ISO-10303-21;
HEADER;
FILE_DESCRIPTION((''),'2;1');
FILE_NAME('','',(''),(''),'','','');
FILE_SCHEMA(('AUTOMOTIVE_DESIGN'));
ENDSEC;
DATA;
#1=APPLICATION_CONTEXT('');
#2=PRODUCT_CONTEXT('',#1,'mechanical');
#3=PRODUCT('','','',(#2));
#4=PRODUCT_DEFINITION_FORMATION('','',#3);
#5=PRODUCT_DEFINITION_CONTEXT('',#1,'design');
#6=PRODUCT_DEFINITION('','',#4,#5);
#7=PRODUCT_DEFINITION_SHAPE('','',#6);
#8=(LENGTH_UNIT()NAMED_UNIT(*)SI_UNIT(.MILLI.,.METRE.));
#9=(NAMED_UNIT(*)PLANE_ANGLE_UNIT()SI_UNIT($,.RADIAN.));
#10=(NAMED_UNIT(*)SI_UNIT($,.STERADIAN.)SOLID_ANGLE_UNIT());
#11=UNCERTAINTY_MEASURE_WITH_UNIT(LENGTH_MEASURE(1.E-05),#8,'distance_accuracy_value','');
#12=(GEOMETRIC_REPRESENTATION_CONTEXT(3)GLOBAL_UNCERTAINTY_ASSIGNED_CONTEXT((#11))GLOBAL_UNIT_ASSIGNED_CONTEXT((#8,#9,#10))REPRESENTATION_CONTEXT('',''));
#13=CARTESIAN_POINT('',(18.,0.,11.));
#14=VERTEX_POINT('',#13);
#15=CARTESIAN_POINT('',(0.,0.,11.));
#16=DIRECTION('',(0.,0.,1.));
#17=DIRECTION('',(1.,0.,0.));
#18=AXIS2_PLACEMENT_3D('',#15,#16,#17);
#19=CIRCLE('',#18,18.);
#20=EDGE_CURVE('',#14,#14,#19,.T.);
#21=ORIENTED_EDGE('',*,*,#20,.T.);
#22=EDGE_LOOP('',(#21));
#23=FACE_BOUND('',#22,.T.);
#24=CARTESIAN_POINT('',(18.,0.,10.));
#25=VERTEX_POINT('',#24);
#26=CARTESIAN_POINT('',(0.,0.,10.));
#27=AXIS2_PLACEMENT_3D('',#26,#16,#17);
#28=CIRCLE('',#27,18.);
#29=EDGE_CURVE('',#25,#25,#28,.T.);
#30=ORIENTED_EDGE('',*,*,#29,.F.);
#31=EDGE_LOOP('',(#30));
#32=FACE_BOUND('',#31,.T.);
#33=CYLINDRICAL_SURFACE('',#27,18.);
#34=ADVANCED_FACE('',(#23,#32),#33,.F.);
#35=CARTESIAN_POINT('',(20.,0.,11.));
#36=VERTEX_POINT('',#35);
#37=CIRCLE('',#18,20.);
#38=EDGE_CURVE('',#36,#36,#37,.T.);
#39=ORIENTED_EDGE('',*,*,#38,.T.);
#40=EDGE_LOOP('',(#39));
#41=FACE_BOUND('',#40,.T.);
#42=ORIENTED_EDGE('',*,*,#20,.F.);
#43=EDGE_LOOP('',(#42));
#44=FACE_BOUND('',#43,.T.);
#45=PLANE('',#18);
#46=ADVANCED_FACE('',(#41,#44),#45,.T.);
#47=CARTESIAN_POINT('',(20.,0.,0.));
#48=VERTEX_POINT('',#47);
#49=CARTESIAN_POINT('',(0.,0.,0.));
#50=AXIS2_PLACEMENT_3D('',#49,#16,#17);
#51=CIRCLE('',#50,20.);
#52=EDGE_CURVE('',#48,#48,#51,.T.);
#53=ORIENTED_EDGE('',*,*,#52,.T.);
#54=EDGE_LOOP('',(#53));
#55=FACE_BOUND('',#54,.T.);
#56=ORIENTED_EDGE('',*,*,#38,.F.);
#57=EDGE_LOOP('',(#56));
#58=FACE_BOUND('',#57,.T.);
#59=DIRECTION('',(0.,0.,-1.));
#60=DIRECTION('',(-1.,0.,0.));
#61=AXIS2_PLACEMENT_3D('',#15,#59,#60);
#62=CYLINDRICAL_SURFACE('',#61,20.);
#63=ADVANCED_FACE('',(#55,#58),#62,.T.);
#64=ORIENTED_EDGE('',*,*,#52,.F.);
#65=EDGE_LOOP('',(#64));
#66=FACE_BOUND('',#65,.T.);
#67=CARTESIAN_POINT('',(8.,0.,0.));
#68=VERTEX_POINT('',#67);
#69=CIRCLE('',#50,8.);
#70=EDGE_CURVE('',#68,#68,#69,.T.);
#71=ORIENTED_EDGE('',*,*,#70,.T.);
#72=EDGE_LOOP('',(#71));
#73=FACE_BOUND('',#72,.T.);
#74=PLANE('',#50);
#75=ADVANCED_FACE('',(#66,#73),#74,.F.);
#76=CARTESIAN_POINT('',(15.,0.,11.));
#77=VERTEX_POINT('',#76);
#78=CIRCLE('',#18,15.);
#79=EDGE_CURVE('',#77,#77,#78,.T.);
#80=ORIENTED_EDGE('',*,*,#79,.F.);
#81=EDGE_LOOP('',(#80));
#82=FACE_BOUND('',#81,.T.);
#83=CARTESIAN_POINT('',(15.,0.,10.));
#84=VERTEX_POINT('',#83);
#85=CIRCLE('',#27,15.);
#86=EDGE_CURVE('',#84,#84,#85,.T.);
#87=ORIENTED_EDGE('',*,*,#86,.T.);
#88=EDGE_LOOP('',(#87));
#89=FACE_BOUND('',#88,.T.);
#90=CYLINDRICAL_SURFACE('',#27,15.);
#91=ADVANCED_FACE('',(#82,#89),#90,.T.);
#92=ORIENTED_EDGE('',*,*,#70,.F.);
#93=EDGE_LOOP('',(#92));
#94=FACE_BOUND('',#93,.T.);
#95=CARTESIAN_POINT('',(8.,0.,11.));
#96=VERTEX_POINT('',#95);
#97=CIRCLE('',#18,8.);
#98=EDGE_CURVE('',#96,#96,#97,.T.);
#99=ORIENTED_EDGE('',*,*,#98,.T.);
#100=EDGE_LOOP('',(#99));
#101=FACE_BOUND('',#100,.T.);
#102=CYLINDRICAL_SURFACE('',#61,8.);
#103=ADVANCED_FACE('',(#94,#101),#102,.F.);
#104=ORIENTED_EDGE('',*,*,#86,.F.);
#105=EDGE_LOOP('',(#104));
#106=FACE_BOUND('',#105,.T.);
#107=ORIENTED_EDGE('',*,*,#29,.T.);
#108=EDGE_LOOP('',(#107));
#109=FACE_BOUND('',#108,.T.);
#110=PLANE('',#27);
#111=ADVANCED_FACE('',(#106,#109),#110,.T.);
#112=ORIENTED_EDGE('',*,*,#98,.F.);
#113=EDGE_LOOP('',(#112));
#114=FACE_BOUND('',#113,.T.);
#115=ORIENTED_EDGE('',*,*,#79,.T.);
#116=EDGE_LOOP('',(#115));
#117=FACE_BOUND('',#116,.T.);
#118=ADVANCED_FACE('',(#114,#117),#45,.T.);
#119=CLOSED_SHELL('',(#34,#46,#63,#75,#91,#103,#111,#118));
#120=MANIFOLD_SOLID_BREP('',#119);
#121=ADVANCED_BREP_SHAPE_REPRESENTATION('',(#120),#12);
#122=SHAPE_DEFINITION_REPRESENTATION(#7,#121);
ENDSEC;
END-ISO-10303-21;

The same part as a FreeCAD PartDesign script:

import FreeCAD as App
import Part
import Sketcher
Q = App.Units.Quantity

doc = App.newDocument("Part")
body = doc.addObject("PartDesign::Body", "Body")

# Sketch on XY plane
sketch1 = doc.addObject("Sketcher::SketchObject", "Sketch")
body.addObject(sketch1)
sketch1.AttachmentSupport = (doc.XY_Plane, [""])
sketch1.MapMode = "FlatFace"
sketch1.addGeometry([
    Part.Circle(App.Vector(0, 0, 0), App.Vector(0, 0, 1), 20),
    Part.Circle(App.Vector(0, 0, 0), App.Vector(0, 0, 1), 8),
], False)
sketch1.addConstraint([
    Sketcher.Constraint("Coincident", 0, 3, -1, 1),
    Sketcher.Constraint("Coincident", 1, 3, -1, 1),
    Sketcher.Constraint("Diameter", 0, Q("40 mm")),
    Sketcher.Constraint("Diameter", 1, Q("16 mm")),
])
pad1 = doc.addObject("PartDesign::Pad", "Pad")
body.addObject(pad1)
pad1.Profile = sketch1
pad1.Length = 11

# Sketch on XY plane
sketch2 = doc.addObject("Sketcher::SketchObject", "Sketch001")
body.addObject(sketch2)
sketch2.AttachmentSupport = (doc.XY_Plane, [""])
sketch2.MapMode = "FlatFace"
sketch2.AttachmentOffset = App.Placement(App.Vector(0, 0, 11), App.Rotation())
sketch2.addGeometry([
    Part.Circle(App.Vector(0, 0, 0), App.Vector(0, 0, 1), 18),
    Part.Circle(App.Vector(0, 0, 0), App.Vector(0, 0, 1), 15),
], False)
sketch2.addConstraint([
    Sketcher.Constraint("Coincident", 0, 3, -1, 1),
    Sketcher.Constraint("Coincident", 1, 3, -1, 1),
    Sketcher.Constraint("Diameter", 0, Q("36 mm")),
    Sketcher.Constraint("Diameter", 1, Q("30 mm")),
])
pocket1 = doc.addObject("PartDesign::Pocket", "Pocket")
body.addObject(pocket1)
pocket1.Profile = sketch2
pocket1.Length = 1

doc.recompute()
